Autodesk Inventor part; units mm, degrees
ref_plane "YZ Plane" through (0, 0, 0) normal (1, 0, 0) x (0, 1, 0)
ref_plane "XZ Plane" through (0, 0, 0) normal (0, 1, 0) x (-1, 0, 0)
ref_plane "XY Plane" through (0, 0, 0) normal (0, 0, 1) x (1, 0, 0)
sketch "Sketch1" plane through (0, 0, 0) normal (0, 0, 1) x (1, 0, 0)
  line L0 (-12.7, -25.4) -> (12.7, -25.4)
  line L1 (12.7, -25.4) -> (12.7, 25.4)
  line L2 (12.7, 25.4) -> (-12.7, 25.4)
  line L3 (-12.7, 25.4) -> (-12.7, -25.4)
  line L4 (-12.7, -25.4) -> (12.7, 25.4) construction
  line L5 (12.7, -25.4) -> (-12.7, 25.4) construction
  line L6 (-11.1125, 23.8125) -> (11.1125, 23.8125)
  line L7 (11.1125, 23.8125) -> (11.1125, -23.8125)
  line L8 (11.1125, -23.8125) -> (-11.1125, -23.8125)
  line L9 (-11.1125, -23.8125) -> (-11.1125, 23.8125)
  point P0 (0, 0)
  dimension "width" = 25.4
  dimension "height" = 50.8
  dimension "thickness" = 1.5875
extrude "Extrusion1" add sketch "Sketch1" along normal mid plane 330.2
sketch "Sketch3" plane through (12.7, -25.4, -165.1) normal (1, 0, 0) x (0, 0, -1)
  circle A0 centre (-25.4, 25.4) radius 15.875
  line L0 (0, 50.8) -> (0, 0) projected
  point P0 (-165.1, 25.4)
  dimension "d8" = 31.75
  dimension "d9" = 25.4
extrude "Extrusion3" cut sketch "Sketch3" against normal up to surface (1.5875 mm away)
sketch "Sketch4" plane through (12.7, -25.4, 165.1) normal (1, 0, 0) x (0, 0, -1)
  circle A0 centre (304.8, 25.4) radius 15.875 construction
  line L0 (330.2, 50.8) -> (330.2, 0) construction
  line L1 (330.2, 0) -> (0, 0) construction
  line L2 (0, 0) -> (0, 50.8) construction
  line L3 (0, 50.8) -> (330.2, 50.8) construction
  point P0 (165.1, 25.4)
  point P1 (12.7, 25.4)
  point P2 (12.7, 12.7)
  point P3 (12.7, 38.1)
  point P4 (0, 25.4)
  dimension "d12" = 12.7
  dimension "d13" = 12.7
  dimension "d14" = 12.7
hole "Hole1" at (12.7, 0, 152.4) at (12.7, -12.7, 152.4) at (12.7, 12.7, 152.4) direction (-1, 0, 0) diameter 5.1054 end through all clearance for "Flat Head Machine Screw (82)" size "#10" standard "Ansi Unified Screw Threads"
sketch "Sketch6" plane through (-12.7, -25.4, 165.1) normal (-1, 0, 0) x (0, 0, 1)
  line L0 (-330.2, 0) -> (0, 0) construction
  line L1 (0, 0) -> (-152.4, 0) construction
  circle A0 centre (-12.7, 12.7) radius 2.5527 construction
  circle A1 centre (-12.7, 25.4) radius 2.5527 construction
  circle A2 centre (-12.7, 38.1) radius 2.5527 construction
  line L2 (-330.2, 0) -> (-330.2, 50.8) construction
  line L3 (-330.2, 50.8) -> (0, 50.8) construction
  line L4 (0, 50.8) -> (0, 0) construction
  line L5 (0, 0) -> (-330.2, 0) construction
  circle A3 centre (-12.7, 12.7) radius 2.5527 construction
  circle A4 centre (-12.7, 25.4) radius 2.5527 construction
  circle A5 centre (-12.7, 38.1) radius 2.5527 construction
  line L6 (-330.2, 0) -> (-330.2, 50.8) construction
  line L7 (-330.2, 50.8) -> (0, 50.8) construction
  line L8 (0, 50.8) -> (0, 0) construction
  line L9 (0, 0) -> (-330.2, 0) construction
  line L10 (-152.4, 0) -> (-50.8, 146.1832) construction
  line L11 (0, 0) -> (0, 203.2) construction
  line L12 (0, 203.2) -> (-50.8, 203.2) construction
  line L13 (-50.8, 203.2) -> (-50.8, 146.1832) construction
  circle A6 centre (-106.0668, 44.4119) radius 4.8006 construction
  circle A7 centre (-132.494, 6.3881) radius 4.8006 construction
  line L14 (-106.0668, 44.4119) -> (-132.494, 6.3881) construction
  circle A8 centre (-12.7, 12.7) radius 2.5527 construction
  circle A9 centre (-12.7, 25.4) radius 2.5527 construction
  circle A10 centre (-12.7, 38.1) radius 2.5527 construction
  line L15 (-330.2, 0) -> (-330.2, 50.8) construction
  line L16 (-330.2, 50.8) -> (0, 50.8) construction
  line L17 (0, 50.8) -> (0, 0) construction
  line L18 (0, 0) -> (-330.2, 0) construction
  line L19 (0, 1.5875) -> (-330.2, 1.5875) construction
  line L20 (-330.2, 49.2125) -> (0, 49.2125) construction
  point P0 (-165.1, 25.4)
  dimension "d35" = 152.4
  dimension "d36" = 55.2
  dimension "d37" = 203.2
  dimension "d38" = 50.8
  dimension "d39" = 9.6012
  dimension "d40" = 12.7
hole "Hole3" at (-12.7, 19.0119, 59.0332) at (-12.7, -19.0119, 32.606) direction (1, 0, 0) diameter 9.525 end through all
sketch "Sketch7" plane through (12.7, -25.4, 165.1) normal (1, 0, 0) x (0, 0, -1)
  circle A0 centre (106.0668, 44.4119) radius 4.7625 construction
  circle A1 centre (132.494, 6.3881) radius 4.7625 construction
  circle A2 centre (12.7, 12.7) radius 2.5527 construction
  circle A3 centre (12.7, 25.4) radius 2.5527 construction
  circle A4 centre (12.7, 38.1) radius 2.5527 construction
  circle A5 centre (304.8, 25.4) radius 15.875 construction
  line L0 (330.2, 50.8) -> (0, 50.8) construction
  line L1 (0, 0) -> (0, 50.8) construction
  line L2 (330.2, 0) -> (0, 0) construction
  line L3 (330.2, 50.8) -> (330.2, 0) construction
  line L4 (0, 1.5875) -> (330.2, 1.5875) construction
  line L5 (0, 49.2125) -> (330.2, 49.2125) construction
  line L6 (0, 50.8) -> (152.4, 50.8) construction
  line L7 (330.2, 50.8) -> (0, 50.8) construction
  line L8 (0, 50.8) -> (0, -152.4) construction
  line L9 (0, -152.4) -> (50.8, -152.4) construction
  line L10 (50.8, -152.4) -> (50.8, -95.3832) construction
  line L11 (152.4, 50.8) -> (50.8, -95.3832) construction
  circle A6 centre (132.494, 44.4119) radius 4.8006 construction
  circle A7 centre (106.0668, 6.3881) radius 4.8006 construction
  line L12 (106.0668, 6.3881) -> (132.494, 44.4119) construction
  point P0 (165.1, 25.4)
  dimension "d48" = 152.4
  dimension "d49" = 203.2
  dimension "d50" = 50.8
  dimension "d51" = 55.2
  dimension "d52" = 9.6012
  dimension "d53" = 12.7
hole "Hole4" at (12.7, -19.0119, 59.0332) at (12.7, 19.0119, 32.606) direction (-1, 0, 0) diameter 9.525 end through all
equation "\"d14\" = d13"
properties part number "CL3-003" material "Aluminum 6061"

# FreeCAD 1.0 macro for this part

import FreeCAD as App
import Part
import Sketcher
Q = App.Units.Quantity


def add_polygon(sketch, points):
    """Adds a closed chain of lines whose ends are joined by coincident constraints."""
    first, n = sketch.GeometryCount, len(points)
    for a, b in zip(points, points[1:] + points[:1]):
        sketch.addGeometry(Part.LineSegment(App.Vector(*a, 0), App.Vector(*b, 0)), False)
    for i in range(n):
        sketch.addConstraint(Sketcher.Constraint("Coincident", first + i, 2, first + (i + 1) % n, 1))

doc = App.newDocument("Part")
body = doc.addObject("PartDesign::Body", "Body")

sketch1 = doc.addObject("Sketcher::SketchObject", "Sketch")
body.addObject(sketch1)
sketch1.AttachmentSupport = (doc.XY_Plane, [""])
sketch1.MapMode = "FlatFace"
add_polygon(sketch1, [(-13, 25), (-13, -25), (13, -25), (13, 25)])
add_polygon(sketch1, [(-11, -24), (-11, 24), (11, 24), (11, -24)])
sketch1.addConstraint([
    Sketcher.Constraint("Vertical", 0),
    Sketcher.Constraint("Horizontal", 1),
    Sketcher.Constraint("Vertical", 2),
    Sketcher.Constraint("Horizontal", 3),
    Sketcher.Constraint("Vertical", 4),
    Sketcher.Constraint("Horizontal", 5),
    Sketcher.Constraint("Vertical", 6),
    Sketcher.Constraint("Horizontal", 7),
    Sketcher.Constraint("Symmetric", 0, 2, 2, 2, -1, 1),
    Sketcher.Constraint("Symmetric", 4, 2, 6, 2, -1, 1),
    Sketcher.Constraint("DistanceX", 1, 1, 1, 2, Q("1 in")),
    Sketcher.Constraint("DistanceY", 0, 2, 0, 1, Q("2 in")),
    Sketcher.Constraint("DistanceX", 3, 2, 4, 2, Q("0.0625 in")),
    Sketcher.Constraint("DistanceY", 4, 2, 3, 2, Q("0.0625 in")),
])
pad1 = doc.addObject("PartDesign::Pad", "Pad")
body.addObject(pad1)
pad1.Profile = sketch1
pad1.Length = Q("13 in")
pad1.Midplane = True

sketch2 = doc.addObject("Sketcher::SketchObject", "Sketch001")
body.addObject(sketch2)
sketch2.AttachmentSupport = (doc.YZ_Plane, [""])
sketch2.MapMode = "FlatFace"
sketch2.AttachmentOffset = App.Placement(App.Vector(0, 0, 0.5 * 25.4), App.Rotation())
sketch2.addGeometry(Part.Circle(App.Vector(0, -140, 0), App.Vector(0, 0, 1), 16), False)
sketch2.addConstraint([
    Sketcher.Constraint("PointOnObject", 0, 3, -2),
    Sketcher.Constraint("Diameter", 0, Q("1.25 in")),
    Sketcher.Constraint("DistanceY", 0, 3, -1, 1, Q("5.5 in")),
])
pocket1 = doc.addObject("PartDesign::Pocket", "Pocket")
body.addObject(pocket1)
pocket1.Profile = sketch2
pocket1.Length = Q("0.0625 in")

sketch3 = doc.addObject("Sketcher::SketchObject", "Sketch002")
body.addObject(sketch3)
sketch3.AttachmentSupport = (doc.YZ_Plane, [""])
sketch3.MapMode = "FlatFace"
sketch3.AttachmentOffset = App.Placement(App.Vector(0, 0, 0.5 * 25.4), App.Rotation())
sketch3.addGeometry([
    Part.Circle(App.Vector(0, 152.4, 0), App.Vector(0, 0, 1), 2.6),
    Part.Circle(App.Vector(-12.7, 152.4, 0), App.Vector(0, 0, 1), 2.6),
    Part.Circle(App.Vector(12.7, 152.4, 0), App.Vector(0, 0, 1), 2.6),
], False)
sketch3.addConstraint([
    Sketcher.Constraint("Equal", 0, 1),
    Sketcher.Constraint("Equal", 1, 2),
    Sketcher.Constraint("Symmetric", 1, 3, 2, 3, -2),
    Sketcher.Constraint("PointOnObject", 0, 3, -2),
    Sketcher.Constraint("Horizontal", 0, 3, 1, 3),
    Sketcher.Constraint("Diameter", 0, Q("0.201 in")),
    Sketcher.Constraint("DistanceY", -1, 1, 0, 3, Q("6 in")),
    Sketcher.Constraint("DistanceX", 1, 3, 2, 3, Q("1 in")),
])
doc.recompute()
hole = doc.addObject("PartDesign::Hole", "Hole")
body.addObject(hole)
hole.Profile = sketch3
hole.ThreadType = "None"
hole.Diameter = Q("0.201 in")
hole.DepthType = "ThroughAll"

sketch4 = doc.addObject("Sketcher::SketchObject", "Sketch003")
body.addObject(sketch4)
sketch4.AttachmentSupport = (doc.YZ_Plane, [""])
sketch4.MapMode = "FlatFace"
sketch4.AttachmentOffset = App.Placement(App.Vector(0, 0, -0.5 * 25.4), App.Rotation())
sketch4.addGeometry([
    Part.Circle(App.Vector(19, 59, 0), App.Vector(0, 0, 1), 4.8),
    Part.Circle(App.Vector(-19, 32.6, 0), App.Vector(0, 0, 1), 4.8),
], False)
sketch4.addConstraint([
    Sketcher.Constraint("Equal", 0, 1),
    Sketcher.Constraint("Diameter", 0, Q("0.375 in")),
    Sketcher.Constraint("DistanceX", 1, 3, 0, 3, Q("1.497 in")),
    Sketcher.Constraint("DistanceX", -1, 1, 0, 3, Q("0.7485 in")),
    Sketcher.Constraint("DistanceY", -1, 1, 1, 3, Q("1.2837 in")),
    Sketcher.Constraint("DistanceY", -1, 1, 0, 3, 59.0332),
])
doc.recompute()
hole2 = doc.addObject("PartDesign::Hole", "Hole001")
body.addObject(hole2)
hole2.Profile = sketch4
hole2.ThreadType = "None"
hole2.Diameter = Q("0.375 in")
hole2.DepthType = "ThroughAll"
hole2.Reversed = True

sketch5 = doc.addObject("Sketcher::SketchObject", "Sketch004")
body.addObject(sketch5)
sketch5.AttachmentSupport = (doc.YZ_Plane, [""])
sketch5.MapMode = "FlatFace"
sketch5.AttachmentOffset = App.Placement(App.Vector(0, 0, 0.5 * 25.4), App.Rotation())
sketch5.addGeometry([
    Part.Circle(App.Vector(-19, 59, 0), App.Vector(0, 0, 1), 4.8),
    Part.Circle(App.Vector(19, 32.6, 0), App.Vector(0, 0, 1), 4.8),
], False)
sketch5.addConstraint([
    Sketcher.Constraint("Equal", 0, 1),
    Sketcher.Constraint("Diameter", 0, Q("0.375 in")),
    Sketcher.Constraint("DistanceX", 0, 3, 1, 3, Q("1.497 in")),
    Sketcher.Constraint("DistanceX", 0, 3, -1, 1, Q("0.7485 in")),
    Sketcher.Constraint("DistanceY", -1, 1, 1, 3, Q("1.2837 in")),
    Sketcher.Constraint("DistanceY", -1, 1, 0, 3, 59.0332),
])
doc.recompute()
hole3 = doc.addObject("PartDesign::Hole", "Hole002")
body.addObject(hole3)
hole3.Profile = sketch5
hole3.ThreadType = "None"
hole3.Diameter = Q("0.375 in")
hole3.DepthType = "ThroughAll"

doc.recompute()
